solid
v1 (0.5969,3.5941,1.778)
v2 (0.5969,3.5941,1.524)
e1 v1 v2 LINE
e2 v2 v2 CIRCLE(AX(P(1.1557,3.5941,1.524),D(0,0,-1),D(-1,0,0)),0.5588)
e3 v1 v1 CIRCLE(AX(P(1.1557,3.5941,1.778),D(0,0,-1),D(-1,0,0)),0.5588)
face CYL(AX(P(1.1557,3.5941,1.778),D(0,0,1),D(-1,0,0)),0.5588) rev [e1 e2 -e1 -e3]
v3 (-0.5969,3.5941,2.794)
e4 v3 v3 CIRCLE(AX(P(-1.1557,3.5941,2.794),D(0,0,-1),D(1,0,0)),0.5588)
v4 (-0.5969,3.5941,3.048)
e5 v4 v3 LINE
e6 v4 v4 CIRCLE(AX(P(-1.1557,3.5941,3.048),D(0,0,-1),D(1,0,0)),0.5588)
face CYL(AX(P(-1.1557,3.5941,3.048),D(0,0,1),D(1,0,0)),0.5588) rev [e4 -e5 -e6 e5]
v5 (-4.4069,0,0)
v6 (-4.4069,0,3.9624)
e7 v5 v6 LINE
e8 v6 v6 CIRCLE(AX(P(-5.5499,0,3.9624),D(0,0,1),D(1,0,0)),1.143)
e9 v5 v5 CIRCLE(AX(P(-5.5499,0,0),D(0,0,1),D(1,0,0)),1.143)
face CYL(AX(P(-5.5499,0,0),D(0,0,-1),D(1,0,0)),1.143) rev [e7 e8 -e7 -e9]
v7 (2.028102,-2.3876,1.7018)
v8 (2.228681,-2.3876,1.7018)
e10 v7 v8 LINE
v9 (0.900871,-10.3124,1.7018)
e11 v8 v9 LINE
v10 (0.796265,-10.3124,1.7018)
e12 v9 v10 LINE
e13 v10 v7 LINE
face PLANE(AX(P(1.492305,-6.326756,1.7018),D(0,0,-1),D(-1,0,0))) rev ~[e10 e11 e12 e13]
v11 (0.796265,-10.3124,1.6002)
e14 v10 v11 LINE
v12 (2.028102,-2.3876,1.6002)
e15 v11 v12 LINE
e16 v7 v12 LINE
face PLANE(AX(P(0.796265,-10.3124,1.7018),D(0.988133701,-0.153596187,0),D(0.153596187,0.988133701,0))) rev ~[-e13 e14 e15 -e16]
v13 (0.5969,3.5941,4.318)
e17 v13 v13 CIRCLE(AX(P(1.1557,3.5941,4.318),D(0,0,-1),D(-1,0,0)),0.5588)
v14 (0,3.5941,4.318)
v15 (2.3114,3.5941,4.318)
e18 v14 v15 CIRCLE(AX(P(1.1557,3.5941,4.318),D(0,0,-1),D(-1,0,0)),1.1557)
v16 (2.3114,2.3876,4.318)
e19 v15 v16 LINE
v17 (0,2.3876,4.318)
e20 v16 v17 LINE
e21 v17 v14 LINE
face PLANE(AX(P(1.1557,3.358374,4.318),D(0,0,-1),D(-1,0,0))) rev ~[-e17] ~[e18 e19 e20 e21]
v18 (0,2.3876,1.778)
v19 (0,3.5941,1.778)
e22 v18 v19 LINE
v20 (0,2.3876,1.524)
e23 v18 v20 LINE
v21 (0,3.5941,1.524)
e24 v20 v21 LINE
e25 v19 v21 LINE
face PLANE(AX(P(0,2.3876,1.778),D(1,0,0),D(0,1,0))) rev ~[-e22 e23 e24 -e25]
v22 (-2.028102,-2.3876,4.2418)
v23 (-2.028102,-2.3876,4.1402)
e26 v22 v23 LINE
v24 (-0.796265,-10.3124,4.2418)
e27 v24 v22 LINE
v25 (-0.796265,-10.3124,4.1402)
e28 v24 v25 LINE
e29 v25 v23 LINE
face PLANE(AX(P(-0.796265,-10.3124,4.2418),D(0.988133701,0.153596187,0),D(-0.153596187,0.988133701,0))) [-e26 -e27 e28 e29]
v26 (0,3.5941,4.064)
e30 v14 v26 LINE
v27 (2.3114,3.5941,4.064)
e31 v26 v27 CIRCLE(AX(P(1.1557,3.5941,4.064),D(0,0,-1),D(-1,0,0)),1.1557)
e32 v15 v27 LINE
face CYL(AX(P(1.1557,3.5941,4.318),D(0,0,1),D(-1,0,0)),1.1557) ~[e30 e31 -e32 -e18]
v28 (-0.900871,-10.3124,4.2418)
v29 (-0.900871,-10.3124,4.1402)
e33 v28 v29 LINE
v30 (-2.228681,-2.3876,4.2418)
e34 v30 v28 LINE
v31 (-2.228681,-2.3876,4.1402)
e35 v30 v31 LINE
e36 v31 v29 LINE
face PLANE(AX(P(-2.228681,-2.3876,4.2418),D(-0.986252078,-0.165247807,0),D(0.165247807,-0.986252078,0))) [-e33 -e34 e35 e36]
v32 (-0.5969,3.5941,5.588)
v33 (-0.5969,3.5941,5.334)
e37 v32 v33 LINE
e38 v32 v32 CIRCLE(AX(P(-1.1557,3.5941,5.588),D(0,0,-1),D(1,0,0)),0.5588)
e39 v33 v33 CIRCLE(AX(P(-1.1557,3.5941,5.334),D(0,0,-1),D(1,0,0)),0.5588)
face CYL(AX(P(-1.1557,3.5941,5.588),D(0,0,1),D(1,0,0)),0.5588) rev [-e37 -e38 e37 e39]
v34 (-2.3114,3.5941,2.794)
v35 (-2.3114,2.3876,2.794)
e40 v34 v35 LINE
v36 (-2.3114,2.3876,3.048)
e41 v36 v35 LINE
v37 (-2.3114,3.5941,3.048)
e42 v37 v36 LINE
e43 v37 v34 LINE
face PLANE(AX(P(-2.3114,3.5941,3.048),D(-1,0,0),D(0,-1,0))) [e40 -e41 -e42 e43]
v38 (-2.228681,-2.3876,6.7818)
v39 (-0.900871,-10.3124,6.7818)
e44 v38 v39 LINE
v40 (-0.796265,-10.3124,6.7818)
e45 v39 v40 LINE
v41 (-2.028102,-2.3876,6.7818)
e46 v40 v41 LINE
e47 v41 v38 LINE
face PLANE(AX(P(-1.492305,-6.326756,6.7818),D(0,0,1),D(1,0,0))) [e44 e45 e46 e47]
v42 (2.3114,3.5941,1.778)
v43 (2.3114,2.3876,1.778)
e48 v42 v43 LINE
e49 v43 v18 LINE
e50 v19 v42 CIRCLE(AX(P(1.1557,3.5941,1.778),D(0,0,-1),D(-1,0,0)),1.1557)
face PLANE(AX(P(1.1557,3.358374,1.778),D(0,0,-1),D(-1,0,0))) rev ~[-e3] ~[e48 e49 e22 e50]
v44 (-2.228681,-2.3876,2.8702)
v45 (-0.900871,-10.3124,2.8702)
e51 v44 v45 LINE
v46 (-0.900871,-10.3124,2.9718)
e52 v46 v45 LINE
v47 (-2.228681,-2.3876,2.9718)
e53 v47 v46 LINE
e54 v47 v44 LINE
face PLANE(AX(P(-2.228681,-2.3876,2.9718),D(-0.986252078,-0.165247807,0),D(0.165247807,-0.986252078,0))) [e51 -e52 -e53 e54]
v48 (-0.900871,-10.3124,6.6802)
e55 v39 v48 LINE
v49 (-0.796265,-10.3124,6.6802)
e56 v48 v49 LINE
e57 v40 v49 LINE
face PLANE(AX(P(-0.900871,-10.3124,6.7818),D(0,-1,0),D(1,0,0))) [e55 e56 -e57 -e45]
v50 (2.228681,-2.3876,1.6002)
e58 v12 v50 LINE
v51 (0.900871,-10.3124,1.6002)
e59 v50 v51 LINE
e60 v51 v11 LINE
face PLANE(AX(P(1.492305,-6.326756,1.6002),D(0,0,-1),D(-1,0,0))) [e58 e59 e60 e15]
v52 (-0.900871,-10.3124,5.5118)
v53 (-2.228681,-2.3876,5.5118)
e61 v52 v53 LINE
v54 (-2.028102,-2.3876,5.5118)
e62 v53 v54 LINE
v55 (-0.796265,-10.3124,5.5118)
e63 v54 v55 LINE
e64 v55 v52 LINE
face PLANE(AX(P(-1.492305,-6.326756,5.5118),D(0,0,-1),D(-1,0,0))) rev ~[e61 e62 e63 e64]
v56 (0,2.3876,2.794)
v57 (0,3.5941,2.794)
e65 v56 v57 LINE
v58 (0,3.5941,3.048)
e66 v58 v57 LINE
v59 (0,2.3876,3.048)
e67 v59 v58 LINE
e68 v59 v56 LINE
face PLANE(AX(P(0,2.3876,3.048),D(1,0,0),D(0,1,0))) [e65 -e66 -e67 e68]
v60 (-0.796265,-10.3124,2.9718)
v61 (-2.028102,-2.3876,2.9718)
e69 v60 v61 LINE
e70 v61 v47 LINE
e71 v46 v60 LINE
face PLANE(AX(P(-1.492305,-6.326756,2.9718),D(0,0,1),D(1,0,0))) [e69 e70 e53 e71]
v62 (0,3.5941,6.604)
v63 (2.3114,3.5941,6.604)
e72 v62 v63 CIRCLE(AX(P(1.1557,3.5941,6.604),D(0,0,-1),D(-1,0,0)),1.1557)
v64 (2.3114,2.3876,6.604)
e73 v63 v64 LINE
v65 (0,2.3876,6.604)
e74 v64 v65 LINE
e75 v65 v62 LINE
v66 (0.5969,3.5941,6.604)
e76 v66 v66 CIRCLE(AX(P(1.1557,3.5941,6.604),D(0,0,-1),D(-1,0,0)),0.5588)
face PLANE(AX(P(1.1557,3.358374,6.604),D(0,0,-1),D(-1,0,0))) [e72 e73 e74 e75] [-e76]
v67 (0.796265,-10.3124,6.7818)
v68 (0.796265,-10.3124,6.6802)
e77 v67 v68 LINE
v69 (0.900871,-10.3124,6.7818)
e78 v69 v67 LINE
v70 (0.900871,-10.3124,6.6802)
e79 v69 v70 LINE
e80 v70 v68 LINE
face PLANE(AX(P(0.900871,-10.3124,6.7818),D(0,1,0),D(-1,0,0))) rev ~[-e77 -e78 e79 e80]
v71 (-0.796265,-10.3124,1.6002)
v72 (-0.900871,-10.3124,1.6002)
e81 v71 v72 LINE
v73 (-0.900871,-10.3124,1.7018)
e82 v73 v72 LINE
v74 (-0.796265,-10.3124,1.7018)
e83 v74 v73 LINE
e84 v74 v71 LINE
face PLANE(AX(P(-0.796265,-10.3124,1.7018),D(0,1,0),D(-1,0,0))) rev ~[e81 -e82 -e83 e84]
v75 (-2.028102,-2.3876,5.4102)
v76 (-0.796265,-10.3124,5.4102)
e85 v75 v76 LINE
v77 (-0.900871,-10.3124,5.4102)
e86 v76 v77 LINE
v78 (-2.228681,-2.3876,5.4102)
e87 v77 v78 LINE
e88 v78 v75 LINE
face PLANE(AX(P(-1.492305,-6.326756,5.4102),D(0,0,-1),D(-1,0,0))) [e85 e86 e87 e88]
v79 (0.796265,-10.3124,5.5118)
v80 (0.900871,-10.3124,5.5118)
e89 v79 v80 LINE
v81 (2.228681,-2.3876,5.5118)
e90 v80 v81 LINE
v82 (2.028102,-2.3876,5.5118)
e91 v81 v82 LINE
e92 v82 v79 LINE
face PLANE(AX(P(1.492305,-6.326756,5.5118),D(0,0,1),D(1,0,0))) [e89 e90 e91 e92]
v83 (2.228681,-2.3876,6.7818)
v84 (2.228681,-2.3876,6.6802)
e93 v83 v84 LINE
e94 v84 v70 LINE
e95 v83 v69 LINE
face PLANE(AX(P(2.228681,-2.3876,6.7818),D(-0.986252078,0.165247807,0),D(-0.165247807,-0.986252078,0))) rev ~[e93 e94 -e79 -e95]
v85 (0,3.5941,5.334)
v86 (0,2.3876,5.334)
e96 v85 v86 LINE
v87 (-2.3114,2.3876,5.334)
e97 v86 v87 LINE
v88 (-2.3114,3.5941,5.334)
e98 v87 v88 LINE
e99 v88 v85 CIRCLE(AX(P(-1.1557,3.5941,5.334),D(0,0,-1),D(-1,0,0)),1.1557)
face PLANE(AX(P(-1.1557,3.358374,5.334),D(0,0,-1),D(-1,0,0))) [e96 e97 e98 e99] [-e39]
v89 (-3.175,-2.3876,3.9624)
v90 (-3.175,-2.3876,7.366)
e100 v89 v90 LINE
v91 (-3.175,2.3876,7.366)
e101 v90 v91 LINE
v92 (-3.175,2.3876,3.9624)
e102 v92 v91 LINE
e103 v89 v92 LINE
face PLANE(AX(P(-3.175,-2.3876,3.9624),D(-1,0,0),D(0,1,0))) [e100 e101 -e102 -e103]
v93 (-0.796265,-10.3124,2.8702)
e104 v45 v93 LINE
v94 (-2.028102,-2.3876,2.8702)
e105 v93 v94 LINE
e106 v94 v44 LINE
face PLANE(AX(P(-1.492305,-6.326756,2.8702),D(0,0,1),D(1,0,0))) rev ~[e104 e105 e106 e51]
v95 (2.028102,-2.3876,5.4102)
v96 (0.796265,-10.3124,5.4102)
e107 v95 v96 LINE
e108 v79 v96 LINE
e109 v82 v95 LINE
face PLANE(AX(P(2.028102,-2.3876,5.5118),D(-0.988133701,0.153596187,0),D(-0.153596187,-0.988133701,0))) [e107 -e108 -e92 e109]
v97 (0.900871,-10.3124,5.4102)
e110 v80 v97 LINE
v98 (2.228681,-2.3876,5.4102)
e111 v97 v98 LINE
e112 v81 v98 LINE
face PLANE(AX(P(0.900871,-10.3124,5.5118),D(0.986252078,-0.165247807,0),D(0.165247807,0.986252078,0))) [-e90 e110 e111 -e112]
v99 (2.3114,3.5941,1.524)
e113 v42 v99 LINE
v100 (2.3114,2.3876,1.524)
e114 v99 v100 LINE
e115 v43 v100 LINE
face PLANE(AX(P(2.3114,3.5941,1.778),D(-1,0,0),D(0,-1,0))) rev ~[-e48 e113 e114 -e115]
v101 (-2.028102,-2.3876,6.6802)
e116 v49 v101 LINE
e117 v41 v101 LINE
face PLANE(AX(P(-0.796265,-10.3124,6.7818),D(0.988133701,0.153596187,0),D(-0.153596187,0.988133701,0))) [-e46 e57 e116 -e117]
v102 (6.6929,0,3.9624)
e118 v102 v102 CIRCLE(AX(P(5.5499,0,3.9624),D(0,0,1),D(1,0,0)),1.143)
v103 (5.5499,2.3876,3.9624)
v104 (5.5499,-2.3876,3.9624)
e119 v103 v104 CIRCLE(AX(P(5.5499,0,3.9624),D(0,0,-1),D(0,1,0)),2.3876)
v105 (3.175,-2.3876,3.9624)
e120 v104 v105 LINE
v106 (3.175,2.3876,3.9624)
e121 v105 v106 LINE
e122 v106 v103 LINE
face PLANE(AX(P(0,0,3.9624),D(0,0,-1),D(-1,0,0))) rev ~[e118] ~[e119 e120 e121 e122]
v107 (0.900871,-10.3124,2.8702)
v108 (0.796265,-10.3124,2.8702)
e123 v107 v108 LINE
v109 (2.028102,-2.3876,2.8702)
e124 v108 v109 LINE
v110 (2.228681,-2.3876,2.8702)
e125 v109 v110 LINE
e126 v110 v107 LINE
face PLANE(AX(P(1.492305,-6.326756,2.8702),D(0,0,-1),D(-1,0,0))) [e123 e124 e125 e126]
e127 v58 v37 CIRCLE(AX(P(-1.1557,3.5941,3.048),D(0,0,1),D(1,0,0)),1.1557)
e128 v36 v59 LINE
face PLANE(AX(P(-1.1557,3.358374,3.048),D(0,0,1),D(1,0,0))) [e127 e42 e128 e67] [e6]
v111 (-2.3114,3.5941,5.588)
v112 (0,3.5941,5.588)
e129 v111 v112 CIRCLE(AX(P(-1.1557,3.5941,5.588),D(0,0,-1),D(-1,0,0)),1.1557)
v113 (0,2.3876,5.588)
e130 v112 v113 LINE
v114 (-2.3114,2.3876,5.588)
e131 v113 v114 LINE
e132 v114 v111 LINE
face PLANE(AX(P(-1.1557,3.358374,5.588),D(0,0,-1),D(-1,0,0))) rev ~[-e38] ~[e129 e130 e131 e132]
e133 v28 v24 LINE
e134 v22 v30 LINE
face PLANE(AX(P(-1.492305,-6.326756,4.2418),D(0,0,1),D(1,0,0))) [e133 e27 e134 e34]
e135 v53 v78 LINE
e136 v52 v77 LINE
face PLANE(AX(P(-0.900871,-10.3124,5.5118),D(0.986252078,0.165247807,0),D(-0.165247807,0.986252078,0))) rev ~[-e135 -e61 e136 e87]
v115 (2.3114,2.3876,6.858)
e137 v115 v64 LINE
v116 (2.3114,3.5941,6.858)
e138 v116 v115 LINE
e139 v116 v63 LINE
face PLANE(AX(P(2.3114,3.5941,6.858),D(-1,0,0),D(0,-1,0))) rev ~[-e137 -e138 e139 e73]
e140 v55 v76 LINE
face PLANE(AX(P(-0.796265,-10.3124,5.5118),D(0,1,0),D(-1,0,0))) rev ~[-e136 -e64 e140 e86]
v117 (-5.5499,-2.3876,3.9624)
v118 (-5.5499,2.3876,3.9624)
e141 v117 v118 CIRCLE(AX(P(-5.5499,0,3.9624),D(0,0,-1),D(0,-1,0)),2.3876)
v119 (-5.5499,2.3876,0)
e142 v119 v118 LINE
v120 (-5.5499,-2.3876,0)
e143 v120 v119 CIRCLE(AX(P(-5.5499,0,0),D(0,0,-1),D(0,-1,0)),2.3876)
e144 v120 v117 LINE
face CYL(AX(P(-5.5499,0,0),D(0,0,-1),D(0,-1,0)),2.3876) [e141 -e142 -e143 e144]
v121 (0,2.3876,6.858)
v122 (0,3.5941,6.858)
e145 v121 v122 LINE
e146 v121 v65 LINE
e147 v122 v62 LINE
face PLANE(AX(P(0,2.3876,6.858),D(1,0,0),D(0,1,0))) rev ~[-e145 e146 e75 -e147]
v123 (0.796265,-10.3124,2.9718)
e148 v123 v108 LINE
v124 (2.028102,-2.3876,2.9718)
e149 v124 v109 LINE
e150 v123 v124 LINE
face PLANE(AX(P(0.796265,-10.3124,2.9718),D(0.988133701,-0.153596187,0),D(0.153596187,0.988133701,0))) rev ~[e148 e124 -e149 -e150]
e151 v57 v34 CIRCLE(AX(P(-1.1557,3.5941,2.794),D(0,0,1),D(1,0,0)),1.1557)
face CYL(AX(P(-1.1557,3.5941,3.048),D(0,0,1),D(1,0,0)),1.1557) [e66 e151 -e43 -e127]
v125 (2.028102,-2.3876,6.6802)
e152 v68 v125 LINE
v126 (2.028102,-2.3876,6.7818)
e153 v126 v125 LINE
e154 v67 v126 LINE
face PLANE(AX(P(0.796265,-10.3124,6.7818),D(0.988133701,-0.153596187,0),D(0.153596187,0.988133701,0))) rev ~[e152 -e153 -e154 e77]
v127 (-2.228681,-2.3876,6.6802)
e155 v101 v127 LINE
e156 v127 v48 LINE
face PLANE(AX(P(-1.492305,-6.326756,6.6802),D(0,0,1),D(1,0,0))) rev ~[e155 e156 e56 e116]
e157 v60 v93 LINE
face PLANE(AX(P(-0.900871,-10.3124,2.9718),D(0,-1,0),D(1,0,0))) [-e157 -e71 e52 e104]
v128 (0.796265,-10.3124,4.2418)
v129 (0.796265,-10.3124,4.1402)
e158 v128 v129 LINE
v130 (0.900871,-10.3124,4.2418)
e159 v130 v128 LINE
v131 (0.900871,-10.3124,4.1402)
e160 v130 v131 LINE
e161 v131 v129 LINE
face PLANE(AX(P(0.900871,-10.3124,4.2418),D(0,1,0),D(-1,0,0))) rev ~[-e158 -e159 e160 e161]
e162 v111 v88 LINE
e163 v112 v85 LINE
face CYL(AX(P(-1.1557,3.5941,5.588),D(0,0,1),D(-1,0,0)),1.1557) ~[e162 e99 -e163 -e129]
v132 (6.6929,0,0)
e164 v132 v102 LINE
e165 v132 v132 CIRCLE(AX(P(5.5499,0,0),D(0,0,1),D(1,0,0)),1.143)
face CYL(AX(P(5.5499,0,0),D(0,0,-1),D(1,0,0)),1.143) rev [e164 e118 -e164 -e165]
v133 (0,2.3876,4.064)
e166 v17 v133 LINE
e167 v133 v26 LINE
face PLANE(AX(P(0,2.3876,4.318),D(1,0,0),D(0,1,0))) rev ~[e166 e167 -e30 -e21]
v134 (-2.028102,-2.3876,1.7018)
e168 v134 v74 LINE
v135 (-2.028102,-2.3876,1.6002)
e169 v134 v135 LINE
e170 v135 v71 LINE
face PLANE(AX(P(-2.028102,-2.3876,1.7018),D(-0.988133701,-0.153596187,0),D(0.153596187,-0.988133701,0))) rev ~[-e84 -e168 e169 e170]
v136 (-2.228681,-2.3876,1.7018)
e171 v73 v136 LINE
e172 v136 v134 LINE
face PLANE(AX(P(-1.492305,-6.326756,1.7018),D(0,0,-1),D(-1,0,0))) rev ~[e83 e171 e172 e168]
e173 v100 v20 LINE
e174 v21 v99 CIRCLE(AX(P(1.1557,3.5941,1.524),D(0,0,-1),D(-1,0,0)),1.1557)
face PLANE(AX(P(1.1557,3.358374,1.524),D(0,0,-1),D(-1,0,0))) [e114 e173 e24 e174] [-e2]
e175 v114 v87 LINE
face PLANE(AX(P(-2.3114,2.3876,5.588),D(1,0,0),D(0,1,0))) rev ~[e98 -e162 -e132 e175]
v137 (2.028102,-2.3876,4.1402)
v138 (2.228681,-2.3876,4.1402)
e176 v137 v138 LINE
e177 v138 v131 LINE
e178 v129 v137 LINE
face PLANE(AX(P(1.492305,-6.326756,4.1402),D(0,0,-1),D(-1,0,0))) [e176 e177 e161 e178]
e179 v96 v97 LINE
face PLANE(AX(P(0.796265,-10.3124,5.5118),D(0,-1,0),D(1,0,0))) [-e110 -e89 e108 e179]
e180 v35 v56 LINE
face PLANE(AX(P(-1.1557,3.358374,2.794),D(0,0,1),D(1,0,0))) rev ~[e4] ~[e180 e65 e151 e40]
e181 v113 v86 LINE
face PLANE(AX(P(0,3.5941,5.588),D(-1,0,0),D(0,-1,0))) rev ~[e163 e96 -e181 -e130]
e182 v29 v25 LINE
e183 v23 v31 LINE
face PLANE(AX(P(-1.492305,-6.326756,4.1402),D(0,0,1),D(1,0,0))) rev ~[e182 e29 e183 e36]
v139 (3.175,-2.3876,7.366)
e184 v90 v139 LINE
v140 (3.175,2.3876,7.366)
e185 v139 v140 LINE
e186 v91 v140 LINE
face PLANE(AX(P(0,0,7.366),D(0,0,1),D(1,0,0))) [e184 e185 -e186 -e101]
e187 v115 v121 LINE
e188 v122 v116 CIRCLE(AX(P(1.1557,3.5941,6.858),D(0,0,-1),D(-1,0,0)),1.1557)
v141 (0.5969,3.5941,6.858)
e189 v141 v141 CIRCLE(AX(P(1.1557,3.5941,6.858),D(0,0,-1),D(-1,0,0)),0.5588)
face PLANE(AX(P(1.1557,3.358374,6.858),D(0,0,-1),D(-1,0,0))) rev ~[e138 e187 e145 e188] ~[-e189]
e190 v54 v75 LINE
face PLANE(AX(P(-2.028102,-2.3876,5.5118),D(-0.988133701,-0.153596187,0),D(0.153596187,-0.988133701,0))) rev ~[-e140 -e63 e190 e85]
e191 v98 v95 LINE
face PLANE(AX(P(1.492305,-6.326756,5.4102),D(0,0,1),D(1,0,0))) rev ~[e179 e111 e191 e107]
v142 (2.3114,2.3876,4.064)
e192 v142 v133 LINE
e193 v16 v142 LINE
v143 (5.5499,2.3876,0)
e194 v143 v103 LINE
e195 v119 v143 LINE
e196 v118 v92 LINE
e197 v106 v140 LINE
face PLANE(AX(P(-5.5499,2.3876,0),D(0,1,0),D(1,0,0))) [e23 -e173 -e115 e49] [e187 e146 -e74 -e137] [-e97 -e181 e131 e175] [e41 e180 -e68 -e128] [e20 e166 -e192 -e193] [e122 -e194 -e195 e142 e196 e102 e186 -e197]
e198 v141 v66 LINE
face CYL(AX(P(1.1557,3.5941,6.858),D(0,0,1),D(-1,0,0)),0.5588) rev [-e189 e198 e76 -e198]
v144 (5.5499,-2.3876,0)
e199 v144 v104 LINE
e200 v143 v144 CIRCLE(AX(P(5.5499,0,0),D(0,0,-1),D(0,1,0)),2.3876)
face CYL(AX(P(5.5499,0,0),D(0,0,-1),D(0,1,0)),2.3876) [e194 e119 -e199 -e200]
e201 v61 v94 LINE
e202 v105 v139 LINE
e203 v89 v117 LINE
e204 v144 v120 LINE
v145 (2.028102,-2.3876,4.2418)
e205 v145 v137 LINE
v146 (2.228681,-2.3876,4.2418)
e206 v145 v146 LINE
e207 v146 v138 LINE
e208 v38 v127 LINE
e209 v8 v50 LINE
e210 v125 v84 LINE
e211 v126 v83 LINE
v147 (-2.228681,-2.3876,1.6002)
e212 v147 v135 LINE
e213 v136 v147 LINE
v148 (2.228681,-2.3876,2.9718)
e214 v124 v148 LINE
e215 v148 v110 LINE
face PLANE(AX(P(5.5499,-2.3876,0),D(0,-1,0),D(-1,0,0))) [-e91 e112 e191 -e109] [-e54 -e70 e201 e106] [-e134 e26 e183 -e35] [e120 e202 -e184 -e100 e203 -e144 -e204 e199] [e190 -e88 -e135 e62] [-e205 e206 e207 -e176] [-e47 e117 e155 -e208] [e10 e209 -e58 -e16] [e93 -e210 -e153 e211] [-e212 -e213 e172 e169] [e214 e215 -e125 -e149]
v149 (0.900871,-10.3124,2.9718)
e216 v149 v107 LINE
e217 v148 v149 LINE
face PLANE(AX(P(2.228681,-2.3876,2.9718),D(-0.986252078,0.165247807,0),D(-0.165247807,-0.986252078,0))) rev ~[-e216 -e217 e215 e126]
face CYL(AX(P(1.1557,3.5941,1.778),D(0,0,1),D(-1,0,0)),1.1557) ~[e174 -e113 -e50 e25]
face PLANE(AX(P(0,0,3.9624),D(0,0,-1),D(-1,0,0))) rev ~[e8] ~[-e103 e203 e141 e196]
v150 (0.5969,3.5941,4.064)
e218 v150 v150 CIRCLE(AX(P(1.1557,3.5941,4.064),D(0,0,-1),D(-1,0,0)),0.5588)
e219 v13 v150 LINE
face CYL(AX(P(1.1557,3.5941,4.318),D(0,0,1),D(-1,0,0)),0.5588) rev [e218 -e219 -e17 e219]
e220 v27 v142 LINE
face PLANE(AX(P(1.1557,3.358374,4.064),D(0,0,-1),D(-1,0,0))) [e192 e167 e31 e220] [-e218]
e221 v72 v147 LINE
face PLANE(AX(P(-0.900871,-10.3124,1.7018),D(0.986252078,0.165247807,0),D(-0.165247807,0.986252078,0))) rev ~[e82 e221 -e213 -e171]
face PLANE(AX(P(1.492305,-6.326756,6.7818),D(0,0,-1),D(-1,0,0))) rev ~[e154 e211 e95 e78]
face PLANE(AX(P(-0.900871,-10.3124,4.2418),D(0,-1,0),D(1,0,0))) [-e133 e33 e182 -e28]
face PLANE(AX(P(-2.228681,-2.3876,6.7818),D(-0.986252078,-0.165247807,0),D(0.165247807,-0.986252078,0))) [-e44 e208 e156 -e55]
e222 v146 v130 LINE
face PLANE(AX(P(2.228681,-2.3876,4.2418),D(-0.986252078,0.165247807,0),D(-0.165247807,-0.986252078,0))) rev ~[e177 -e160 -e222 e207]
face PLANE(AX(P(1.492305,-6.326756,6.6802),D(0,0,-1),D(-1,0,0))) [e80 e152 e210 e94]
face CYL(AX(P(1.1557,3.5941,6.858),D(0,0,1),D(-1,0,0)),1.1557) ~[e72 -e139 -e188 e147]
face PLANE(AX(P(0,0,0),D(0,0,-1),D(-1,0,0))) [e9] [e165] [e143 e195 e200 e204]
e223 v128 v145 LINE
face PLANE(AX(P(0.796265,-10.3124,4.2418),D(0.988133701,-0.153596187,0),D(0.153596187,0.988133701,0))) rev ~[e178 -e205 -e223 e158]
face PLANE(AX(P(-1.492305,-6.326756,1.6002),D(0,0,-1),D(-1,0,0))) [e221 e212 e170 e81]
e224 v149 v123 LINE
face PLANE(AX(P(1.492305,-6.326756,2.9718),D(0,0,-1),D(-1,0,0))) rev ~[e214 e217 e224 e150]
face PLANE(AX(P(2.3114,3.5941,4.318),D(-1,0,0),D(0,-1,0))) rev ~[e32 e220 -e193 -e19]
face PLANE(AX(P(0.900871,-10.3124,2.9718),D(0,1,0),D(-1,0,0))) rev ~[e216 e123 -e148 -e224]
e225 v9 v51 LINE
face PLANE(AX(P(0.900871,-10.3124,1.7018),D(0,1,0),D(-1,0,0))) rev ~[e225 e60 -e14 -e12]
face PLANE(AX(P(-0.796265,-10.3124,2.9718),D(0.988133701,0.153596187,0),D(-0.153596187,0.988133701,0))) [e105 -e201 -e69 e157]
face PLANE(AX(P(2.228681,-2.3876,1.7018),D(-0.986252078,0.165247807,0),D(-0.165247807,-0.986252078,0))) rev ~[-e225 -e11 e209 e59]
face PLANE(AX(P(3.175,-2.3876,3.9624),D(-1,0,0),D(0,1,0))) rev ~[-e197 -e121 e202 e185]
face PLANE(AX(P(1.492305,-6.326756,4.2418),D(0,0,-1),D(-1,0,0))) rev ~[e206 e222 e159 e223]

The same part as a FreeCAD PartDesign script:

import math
import FreeCAD as App
import Part
import Sketcher
Q = App.Units.Quantity


def add_polygon(sketch, points):
    """Adds a closed chain of lines whose ends are joined by coincident constraints."""
    first, n = sketch.GeometryCount, len(points)
    for a, b in zip(points, points[1:] + points[:1]):
        sketch.addGeometry(Part.LineSegment(App.Vector(*a, 0), App.Vector(*b, 0)), False)
    for i in range(n):
        sketch.addConstraint(Sketcher.Constraint("Coincident", first + i, 2, first + (i + 1) % n, 1))

doc = App.newDocument("Part")
body = doc.addObject("PartDesign::Body", "Body")

# Sketch on XY plane
sketch1 = doc.addObject("Sketcher::SketchObject", "Sketch")
body.addObject(sketch1)
sketch1.AttachmentSupport = (doc.XY_Plane, [""])
sketch1.MapMode = "FlatFace"
sketch1.addGeometry(Part.LineSegment(App.Vector(5.5, 2.4, 0), App.Vector(-5.5, 2.4, 0)), False)
sketch1.addGeometry(Part.ArcOfCircle(Part.Circle(App.Vector(-5.5, 0, 0), App.Vector(0, 0, 1), 2.4), math.radians(90), math.radians(270)), False)
sketch1.addGeometry(Part.LineSegment(App.Vector(-5.5, -2.4, 0), App.Vector(5.5, -2.4, 0)), False)
sketch1.addGeometry(Part.ArcOfCircle(Part.Circle(App.Vector(5.5, 0, 0), App.Vector(0, 0, 1), 2.4), math.radians(-90), math.radians(90)), False)
sketch1.addGeometry(Part.Circle(App.Vector(5.5, 0, 0), App.Vector(0, 0, 1), 1.1), False)
sketch1.addGeometry(Part.Circle(App.Vector(-5.5, 0, 0), App.Vector(0, 0, 1), 1.1), False)
sketch1.addConstraint(Sketcher.Constraint("Tangent", 0, 2, 1, 1))
sketch1.addConstraint(Sketcher.Constraint("Tangent", 1, 2, 2, 1))
sketch1.addConstraint(Sketcher.Constraint("Tangent", 2, 2, 3, 1))
sketch1.addConstraint(Sketcher.Constraint("Tangent", 3, 2, 0, 1))
sketch1.addConstraint(Sketcher.Constraint("Horizontal", 0))
sketch1.addConstraint(Sketcher.Constraint("Horizontal", 2))
sketch1.addConstraint(Sketcher.Constraint("Coincident", 4, 3, 3, 3))
sketch1.addConstraint(Sketcher.Constraint("Coincident", 5, 3, 1, 3))
sketch1.addConstraint(Sketcher.Constraint("Equal", 4, 5))
sketch1.addConstraint(Sketcher.Constraint("Symmetric", 1, 3, 3, 3, -1, 1))
sketch1.addConstraint(Sketcher.Constraint("Diameter", 4, Q("0.09 in")))
sketch1.addConstraint(Sketcher.Constraint("Radius", 1, Q("0.094 in")))
sketch1.addConstraint(Sketcher.Constraint("DistanceX", 0, 2, 0, 1, Q("0.437 in")))
pad1 = doc.addObject("PartDesign::Pad", "Pad")
body.addObject(pad1)
pad1.Profile = sketch1
pad1.Length = Q("0.156 in")

# Sketch on XY plane
sketch2 = doc.addObject("Sketcher::SketchObject", "Sketch001")
body.addObject(sketch2)
sketch2.AttachmentSupport = (doc.XY_Plane, [""])
sketch2.MapMode = "FlatFace"
sketch2.AttachmentOffset = App.Placement(App.Vector(0, 0, 0.156 * 25.4), App.Rotation())
add_polygon(sketch2, [(-3.2, 2.4), (-3.2, -2.4), (3.2, -2.4), (3.2, 2.4)])  # lines 0-3
sketch2.addConstraint(Sketcher.Constraint("Vertical", 0))
sketch2.addConstraint(Sketcher.Constraint("Horizontal", 1))
sketch2.addConstraint(Sketcher.Constraint("Vertical", 2))
sketch2.addConstraint(Sketcher.Constraint("Horizontal", 3))
sketch2.addConstraint(Sketcher.Constraint("Symmetric", 0, 2, 2, 2, -1, 1))
sketch2.addConstraint(Sketcher.Constraint("DistanceX", 1, 1, 1, 2, Q("0.25 in")))
sketch2.addConstraint(Sketcher.Constraint("DistanceY", 0, 2, 0, 1, Q("0.188 in")))
pad2 = doc.addObject("PartDesign::Pad", "Pad001")
body.addObject(pad2)
pad2.Profile = sketch2
pad2.Length = Q("0.134 in")

# Sketch on XY plane
sketch3 = doc.addObject("Sketcher::SketchObject", "Sketch002")
body.addObject(sketch3)
sketch3.AttachmentSupport = (doc.XY_Plane, [""])
sketch3.MapMode = "FlatFace"
sketch3.AttachmentOffset = App.Placement(App.Vector(0, 0, 0.065 * 25.4), App.Rotation())
sketch3.addGeometry(Part.LineSegment(App.Vector(2.3, 3.6, 0), App.Vector(2.3, 2.4, 0)), False)
sketch3.addGeometry(Part.LineSegment(App.Vector(2.3, 2.4, 0), App.Vector(0, 2.4, 0)), False)
sketch3.addGeometry(Part.LineSegment(App.Vector(0, 2.4, 0), App.Vector(0, 3.6, 0)), False)
sketch3.addGeometry(Part.ArcOfCircle(Part.Circle(App.Vector(1.2, 3.6, 0), App.Vector(0, 0, 1), 1.2), math.radians(0), math.radians(180)), False)
sketch3.addGeometry(Part.Circle(App.Vector(1.2, 3.6, 0), App.Vector(0, 0, 1), 0.6), False)
sketch3.addConstraint(Sketcher.Constraint("Coincident", 0, 2, 1, 1))
sketch3.addConstraint(Sketcher.Constraint("Coincident", 1, 2, 2, 1))
sketch3.addConstraint(Sketcher.Constraint("Tangent", 2, 2, 3, 2))
sketch3.addConstraint(Sketcher.Constraint("Tangent", 3, 1, 0, 1))
sketch3.addConstraint(Sketcher.Constraint("Vertical", 0))
sketch3.addConstraint(Sketcher.Constraint("Horizontal", 1))
sketch3.addConstraint(Sketcher.Constraint("Vertical", 2))
sketch3.addConstraint(Sketcher.Constraint("Coincident", 4, 3, 3, 3))
sketch3.addConstraint(Sketcher.Constraint("PointOnObject", 1, 2, -2))
sketch3.addConstraint(Sketcher.Constraint("Diameter", 4, Q("0.044 in")))
sketch3.addConstraint(Sketcher.Constraint("Radius", 3, Q("0.0455 in")))
sketch3.addConstraint(Sketcher.Constraint("DistanceY", 0, 2, 0, 1, Q("0.0475 in")))
sketch3.addConstraint(Sketcher.Constraint("DistanceY", -1, 1, 0, 2, Q("0.094 in")))
pad3 = doc.addObject("PartDesign::Pad", "Pad002")
body.addObject(pad3)
pad3.Profile = sketch3
pad3.Type = "TwoLengths"
pad3.Length = Q("0.005 in")
pad3.Length2 = Q("0.005 in")
pad3.Reversed = True

# Sketch on XY plane
sketch4 = doc.addObject("Sketcher::SketchObject", "Sketch003")
body.addObject(sketch4)
sketch4.AttachmentSupport = (doc.XY_Plane, [""])
sketch4.MapMode = "FlatFace"
sketch4.AttachmentOffset = App.Placement(App.Vector(0, 0, 0.115 * 25.4), App.Rotation())
sketch4.addGeometry(Part.LineSegment(App.Vector(-2.3, 2.4, 0), App.Vector(-2.3, 3.6, 0)), False)
sketch4.addGeometry(Part.ArcOfCircle(Part.Circle(App.Vector(-1.2, 3.6, 0), App.Vector(0, 0, 1), 1.2), math.radians(0), math.radians(180)), False)
sketch4.addGeometry(Part.LineSegment(App.Vector(0, 3.6, 0), App.Vector(0, 2.4, 0)), False)
sketch4.addGeometry(Part.LineSegment(App.Vector(0, 2.4, 0), App.Vector(-2.3, 2.4, 0)), False)
sketch4.addGeometry(Part.Circle(App.Vector(-1.2, 3.6, 0), App.Vector(0, 0, 1), 0.6), False)
sketch4.addConstraint(Sketcher.Constraint("Tangent", 0, 2, 1, 2))
sketch4.addConstraint(Sketcher.Constraint("Tangent", 1, 1, 2, 1))
sketch4.addConstraint(Sketcher.Constraint("Coincident", 2, 2, 3, 1))
sketch4.addConstraint(Sketcher.Constraint("Coincident", 3, 2, 0, 1))
sketch4.addConstraint(Sketcher.Constraint("Vertical", 0))
sketch4.addConstraint(Sketcher.Constraint("Vertical", 2))
sketch4.addConstraint(Sketcher.Constraint("Horizontal", 3))
sketch4.addConstraint(Sketcher.Constraint("Coincident", 4, 3, 1, 3))
sketch4.addConstraint(Sketcher.Constraint("PointOnObject", 1, 1, -2))
sketch4.addConstraint(Sketcher.Constraint("Diameter", 4, Q("0.044 in")))
sketch4.addConstraint(Sketcher.Constraint("Radius", 1, Q("0.0455 in")))
sketch4.addConstraint(Sketcher.Constraint("DistanceY", 0, 1, 0, 2, Q("0.0475 in")))
sketch4.addConstraint(Sketcher.Constraint("DistanceY", -1, 1, 2, 2, Q("0.094 in")))
pad4 = doc.addObject("PartDesign::Pad", "Pad003")
body.addObject(pad4)
pad4.Profile = sketch4
pad4.Type = "TwoLengths"
pad4.Length = Q("0.005 in")
pad4.Length2 = Q("0.005 in")
pad4.Reversed = True

# Sketch on XY plane
sketch5 = doc.addObject("Sketcher::SketchObject", "Sketch004")
body.addObject(sketch5)
sketch5.AttachmentSupport = (doc.XY_Plane, [""])
sketch5.MapMode = "FlatFace"
sketch5.AttachmentOffset = App.Placement(App.Vector(0, 0, 0.165 * 25.4), App.Rotation())
sketch5.addGeometry(Part.LineSegment(App.Vector(2.3, 3.6, 0), App.Vector(2.3, 2.4, 0)), False)
sketch5.addGeometry(Part.LineSegment(App.Vector(2.3, 2.4, 0), App.Vector(0, 2.4, 0)), False)
sketch5.addGeometry(Part.LineSegment(App.Vector(0, 2.4, 0), App.Vector(0, 3.6, 0)), False)
sketch5.addGeometry(Part.ArcOfCircle(Part.Circle(App.Vector(1.2, 3.6, 0), App.Vector(0, 0, 1), 1.2), math.radians(0), math.radians(180)), False)
sketch5.addGeometry(Part.Circle(App.Vector(1.2, 3.6, 0), App.Vector(0, 0, 1), 0.6), False)
sketch5.addConstraint(Sketcher.Constraint("Coincident", 0, 2, 1, 1))
sketch5.addConstraint(Sketcher.Constraint("Coincident", 1, 2, 2, 1))
sketch5.addConstraint(Sketcher.Constraint("Tangent", 2, 2, 3, 2))
sketch5.addConstraint(Sketcher.Constraint("Tangent", 3, 1, 0, 1))
sketch5.addConstraint(Sketcher.Constraint("Vertical", 0))
sketch5.addConstraint(Sketcher.Constraint("Horizontal", 1))
sketch5.addConstraint(Sketcher.Constraint("Vertical", 2))
sketch5.addConstraint(Sketcher.Constraint("Coincident", 4, 3, 3, 3))
sketch5.addConstraint(Sketcher.Constraint("PointOnObject", 1, 2, -2))
sketch5.addConstraint(Sketcher.Constraint("Diameter", 4, Q("0.044 in")))
sketch5.addConstraint(Sketcher.Constraint("Radius", 3, Q("0.0455 in")))
sketch5.addConstraint(Sketcher.Constraint("DistanceY", 0, 2, 0, 1, Q("0.0475 in")))
sketch5.addConstraint(Sketcher.Constraint("DistanceY", -1, 1, 0, 2, Q("0.094 in")))
pad5 = doc.addObject("PartDesign::Pad", "Pad004")
body.addObject(pad5)
pad5.Profile = sketch5
pad5.Type = "TwoLengths"
pad5.Length = Q("0.005 in")
pad5.Length2 = Q("0.005 in")
pad5.Reversed = True

# Sketch on XY plane
sketch6 = doc.addObject("Sketcher::SketchObject", "Sketch005")
body.addObject(sketch6)
sketch6.AttachmentSupport = (doc.XY_Plane, [""])
sketch6.MapMode = "FlatFace"
sketch6.AttachmentOffset = App.Placement(App.Vector(0, 0, 0.215 * 25.4), App.Rotation())
sketch6.addGeometry(Part.LineSegment(App.Vector(-2.3, 2.4, 0), App.Vector(-2.3, 3.6, 0)), False)
sketch6.addGeometry(Part.ArcOfCircle(Part.Circle(App.Vector(-1.2, 3.6, 0), App.Vector(0, 0, 1), 1.2), math.radians(0), math.radians(180)), False)
sketch6.addGeometry(Part.LineSegment(App.Vector(0, 3.6, 0), App.Vector(0, 2.4, 0)), False)
sketch6.addGeometry(Part.LineSegment(App.Vector(0, 2.4, 0), App.Vector(-2.3, 2.4, 0)), False)
sketch6.addGeometry(Part.Circle(App.Vector(-1.2, 3.6, 0), App.Vector(0, 0, 1), 0.6), False)
sketch6.addConstraint(Sketcher.Constraint("Tangent", 0, 2, 1, 2))
sketch6.addConstraint(Sketcher.Constraint("Tangent", 1, 1, 2, 1))
sketch6.addConstraint(Sketcher.Constraint("Coincident", 2, 2, 3, 1))
sketch6.addConstraint(Sketcher.Constraint("Coincident", 3, 2, 0, 1))
sketch6.addConstraint(Sketcher.Constraint("Vertical", 0))
sketch6.addConstraint(Sketcher.Constraint("Vertical", 2))
sketch6.addConstraint(Sketcher.Constraint("Horizontal", 3))
sketch6.addConstraint(Sketcher.Constraint("Coincident", 4, 3, 1, 3))
sketch6.addConstraint(Sketcher.Constraint("PointOnObject", 1, 1, -2))
sketch6.addConstraint(Sketcher.Constraint("Diameter", 4, Q("0.044 in")))
sketch6.addConstraint(Sketcher.Constraint("Radius", 1, Q("0.0455 in")))
sketch6.addConstraint(Sketcher.Constraint("DistanceY", 0, 1, 0, 2, Q("0.0475 in")))
sketch6.addConstraint(Sketcher.Constraint("DistanceY", -1, 1, 2, 2, Q("0.094 in")))
pad6 = doc.addObject("PartDesign::Pad", "Pad005")
body.addObject(pad6)
pad6.Profile = sketch6
pad6.Type = "TwoLengths"
pad6.Length = Q("0.005 in")
pad6.Length2 = Q("0.005 in")
pad6.Reversed = True

# Sketch on XY plane
sketch7 = doc.addObject("Sketcher::SketchObject", "Sketch006")
body.addObject(sketch7)
sketch7.AttachmentSupport = (doc.XY_Plane, [""])
sketch7.MapMode = "FlatFace"
sketch7.AttachmentOffset = App.Placement(App.Vector(0, 0, 0.265 * 25.4), App.Rotation())
sketch7.addGeometry(Part.LineSegment(App.Vector(2.3, 3.6, 0), App.Vector(2.3, 2.4, 0)), False)
sketch7.addGeometry(Part.LineSegment(App.Vector(2.3, 2.4, 0), App.Vector(0, 2.4, 0)), False)
sketch7.addGeometry(Part.LineSegment(App.Vector(0, 2.4, 0), App.Vector(0, 3.6, 0)), False)
sketch7.addGeometry(Part.ArcOfCircle(Part.Circle(App.Vector(1.2, 3.6, 0), App.Vector(0, 0, 1), 1.2), math.radians(0), math.radians(180)), False)
sketch7.addGeometry(Part.Circle(App.Vector(1.2, 3.6, 0), App.Vector(0, 0, 1), 0.6), False)
sketch7.addConstraint(Sketcher.Constraint("Coincident", 0, 2, 1, 1))
sketch7.addConstraint(Sketcher.Constraint("Coincident", 1, 2, 2, 1))
sketch7.addConstraint(Sketcher.Constraint("Tangent", 2, 2, 3, 2))
sketch7.addConstraint(Sketcher.Constraint("Tangent", 3, 1, 0, 1))
sketch7.addConstraint(Sketcher.Constraint("Vertical", 0))
sketch7.addConstraint(Sketcher.Constraint("Horizontal", 1))
sketch7.addConstraint(Sketcher.Constraint("Vertical", 2))
sketch7.addConstraint(Sketcher.Constraint("Coincident", 4, 3, 3, 3))
sketch7.addConstraint(Sketcher.Constraint("PointOnObject", 1, 2, -2))
sketch7.addConstraint(Sketcher.Constraint("Diameter", 4, Q("0.044 in")))
sketch7.addConstraint(Sketcher.Constraint("Radius", 3, Q("0.0455 in")))
sketch7.addConstraint(Sketcher.Constraint("DistanceY", 0, 2, 0, 1, Q("0.0475 in")))
sketch7.addConstraint(Sketcher.Constraint("DistanceY", -1, 1, 0, 2, Q("0.094 in")))
pad7 = doc.addObject("PartDesign::Pad", "Pad006")
body.addObject(pad7)
pad7.Profile = sketch7
pad7.Type = "TwoLengths"
pad7.Length = Q("0.005 in")
pad7.Length2 = Q("0.005 in")
pad7.Reversed = True

# Sketch on XY plane
sketch8 = doc.addObject("Sketcher::SketchObject", "Sketch007")
body.addObject(sketch8)
sketch8.AttachmentSupport = (doc.XY_Plane, [""])
sketch8.MapMode = "FlatFace"
sketch8.AttachmentOffset = App.Placement(App.Vector(0, 0, 0.065 * 25.4), App.Rotation())
add_polygon(sketch8, [(-2.23, -2.39), (-2.03, -2.39), (-0.8, -10.31), (-0.9, -10.31)])  # lines 0-3
add_polygon(sketch8, [(0.9, -10.31), (0.8, -10.31), (2.03, -2.39), (2.23, -2.39)])  # lines 4-7
sketch8.addConstraint(Sketcher.Constraint("Horizontal", 0))
sketch8.addConstraint(Sketcher.Constraint("Horizontal", 2))
sketch8.addConstraint(Sketcher.Constraint("Horizontal", 4))
sketch8.addConstraint(Sketcher.Constraint("Horizontal", 6))
sketch8.addConstraint(Sketcher.Constraint("Symmetric", 1, 2, 4, 2, -2))
sketch8.addConstraint(Sketcher.Constraint("Symmetric", 0, 2, 5, 2, -2))
sketch8.addConstraint(Sketcher.Constraint("Equal", 2, 4))
sketch8.addConstraint(Sketcher.Constraint("Equal", 0, 6))
sketch8.addConstraint(Sketcher.Constraint("DistanceY", 0, 2, -1, 1, Q("0.094 in")))
sketch8.addConstraint(Sketcher.Constraint("DistanceY", 1, 2, -1, 1, Q("0.406 in")))
sketch8.addConstraint(Sketcher.Constraint("DistanceX", 0, 1, 0, 2, Q("0.200579 mm")))
sketch8.addConstraint(Sketcher.Constraint("DistanceX", 0, 2, -1, 1, Q("2.028102 mm")))
sketch8.addConstraint(Sketcher.Constraint("Distance", 3, Q("8.035268 mm")))
sketch8.addConstraint(Sketcher.Constraint("DistanceX", 2, 2, 2, 1, Q("0.104605 mm")))
pad8 = doc.addObject("PartDesign::Pad", "Pad007")
body.addObject(pad8)
pad8.Profile = sketch8
pad8.Type = "TwoLengths"
pad8.Length = Q("0.002 in")
pad8.Length2 = Q("0.002 in")
pad8.Reversed = True

# Sketch on XY plane
sketch9 = doc.addObject("Sketcher::SketchObject", "Sketch008")
body.addObject(sketch9)
sketch9.AttachmentSupport = (doc.XY_Plane, [""])
sketch9.MapMode = "FlatFace"
sketch9.AttachmentOffset = App.Placement(App.Vector(0, 0, 0.165 * 25.4), App.Rotation())
add_polygon(sketch9, [(-0.9, -10.31), (-2.23, -2.39), (-2.03, -2.39), (-0.8, -10.31)])  # lines 0-3
add_polygon(sketch9, [(0.9, -10.31), (0.8, -10.31), (2.03, -2.39), (2.23, -2.39)])  # lines 4-7
sketch9.addConstraint(Sketcher.Constraint("Horizontal", 1))
sketch9.addConstraint(Sketcher.Constraint("Horizontal", 3))
sketch9.addConstraint(Sketcher.Constraint("Horizontal", 4))
sketch9.addConstraint(Sketcher.Constraint("Horizontal", 6))
sketch9.addConstraint(Sketcher.Constraint("Symmetric", 2, 2, 4, 2, -2))
sketch9.addConstraint(Sketcher.Constraint("Symmetric", 1, 2, 5, 2, -2))
sketch9.addConstraint(Sketcher.Constraint("Equal", 3, 4))
sketch9.addConstraint(Sketcher.Constraint("Equal", 1, 6))
sketch9.addConstraint(Sketcher.Constraint("DistanceY", 0, 2, -1, 1, Q("0.094 in")))
sketch9.addConstraint(Sketcher.Constraint("DistanceY", 2, 2, -1, 1, Q("0.406 in")))
sketch9.addConstraint(Sketcher.Constraint("DistanceX", 1, 1, 1, 2, Q("0.200579 mm")))
sketch9.addConstraint(Sketcher.Constraint("DistanceX", 1, 2, -1, 1, Q("2.028102 mm")))
sketch9.addConstraint(Sketcher.Constraint("Distance", 0, Q("8.035268 mm")))
sketch9.addConstraint(Sketcher.Constraint("DistanceX", 3, 2, 3, 1, Q("0.104605 mm")))
pad9 = doc.addObject("PartDesign::Pad", "Pad008")
body.addObject(pad9)
pad9.Profile = sketch9
pad9.Type = "TwoLengths"
pad9.Length = Q("0.002 in")
pad9.Length2 = Q("0.002 in")
pad9.Reversed = True

# Sketch on XY plane
sketch10 = doc.addObject("Sketcher::SketchObject", "Sketch009")
body.addObject(sketch10)
sketch10.AttachmentSupport = (doc.XY_Plane, [""])
sketch10.MapMode = "FlatFace"
sketch10.AttachmentOffset = App.Placement(App.Vector(0, 0, 0.265 * 25.4), App.Rotation())
add_polygon(sketch10, [(-0.9, -10.31), (-2.23, -2.39), (-2.03, -2.39), (-0.8, -10.31)])  # lines 0-3
add_polygon(sketch10, [(0.9, -10.31), (0.8, -10.31), (2.03, -2.39), (2.23, -2.39)])  # lines 4-7
sketch10.addConstraint(Sketcher.Constraint("Horizontal", 1))
sketch10.addConstraint(Sketcher.Constraint("Horizontal", 3))
sketch10.addConstraint(Sketcher.Constraint("Horizontal", 4))
sketch10.addConstraint(Sketcher.Constraint("Horizontal", 6))
sketch10.addConstraint(Sketcher.Constraint("Symmetric", 2, 2, 4, 2, -2))
sketch10.addConstraint(Sketcher.Constraint("Symmetric", 1, 2, 5, 2, -2))
sketch10.addConstraint(Sketcher.Constraint("Equal", 3, 4))
sketch10.addConstraint(Sketcher.Constraint("Equal", 1, 6))
sketch10.addConstraint(Sketcher.Constraint("DistanceY", 0, 2, -1, 1, Q("0.094 in")))
sketch10.addConstraint(Sketcher.Constraint("DistanceY", 2, 2, -1, 1, Q("0.406 in")))
sketch10.addConstraint(Sketcher.Constraint("DistanceX", 1, 1, 1, 2, Q("0.200579 mm")))
sketch10.addConstraint(Sketcher.Constraint("DistanceX", 1, 2, -1, 1, Q("2.028102 mm")))
sketch10.addConstraint(Sketcher.Constraint("Distance", 0, Q("8.035268 mm")))
sketch10.addConstraint(Sketcher.Constraint("DistanceX", 3, 2, 3, 1, Q("0.104605 mm")))
pad10 = doc.addObject("PartDesign::Pad", "Pad009")
body.addObject(pad10)
pad10.Profile = sketch10
pad10.Type = "TwoLengths"
pad10.Length = Q("0.002 in")
pad10.Length2 = Q("0.002 in")
pad10.Reversed = True

# Sketch on XY plane
sketch11 = doc.addObject("Sketcher::SketchObject", "Sketch010")
body.addObject(sketch11)
sketch11.AttachmentSupport = (doc.XY_Plane, [""])
sketch11.MapMode = "FlatFace"
sketch11.AttachmentOffset = App.Placement(App.Vector(0, 0, 0.115 * 25.4), App.Rotation())
add_polygon(sketch11, [(-0.8, -10.31), (-0.9, -10.31), (-2.23, -2.39), (-2.03, -2.39)])  # lines 0-3
add_polygon(sketch11, [(0.9, -10.31), (0.8, -10.31), (2.03, -2.39), (2.23, -2.39)])  # lines 4-7
sketch11.addConstraint(Sketcher.Constraint("Horizontal", 0))
sketch11.addConstraint(Sketcher.Constraint("Horizontal", 2))
sketch11.addConstraint(Sketcher.Constraint("Horizontal", 4))
sketch11.addConstraint(Sketcher.Constraint("Horizontal", 6))
sketch11.addConstraint(Sketcher.Constraint("Symmetric", 3, 2, 4, 2, -2))
sketch11.addConstraint(Sketcher.Constraint("Symmetric", 2, 2, 5, 2, -2))
sketch11.addConstraint(Sketcher.Constraint("Equal", 0, 4))
sketch11.addConstraint(Sketcher.Constraint("Equal", 2, 6))
sketch11.addConstraint(Sketcher.Constraint("DistanceY", 0, 2, -1, 1, Q("0.406 in")))
sketch11.addConstraint(Sketcher.Constraint("DistanceY", 1, 2, -1, 1, Q("0.094 in")))
sketch11.addConstraint(Sketcher.Constraint("DistanceX", 2, 1, 2, 2, Q("0.200579 mm")))
sketch11.addConstraint(Sketcher.Constraint("DistanceX", 2, 2, -1, 1, Q("2.028102 mm")))
sketch11.addConstraint(Sketcher.Constraint("Distance", 1, Q("8.035268 mm")))
sketch11.addConstraint(Sketcher.Constraint("DistanceX", 0, 2, 0, 1, Q("0.104605 mm")))
pad11 = doc.addObject("PartDesign::Pad", "Pad010")
body.addObject(pad11)
pad11.Profile = sketch11
pad11.Type = "TwoLengths"
pad11.Length = Q("0.002 in")
pad11.Length2 = Q("0.002 in")
pad11.Reversed = True

# Sketch on XY plane
sketch12 = doc.addObject("Sketcher::SketchObject", "Sketch011")
body.addObject(sketch12)
sketch12.AttachmentSupport = (doc.XY_Plane, [""])
sketch12.MapMode = "FlatFace"
sketch12.AttachmentOffset = App.Placement(App.Vector(0, 0, 0.215 * 25.4), App.Rotation())
add_polygon(sketch12, [(2.23, -2.39), (0.9, -10.31), (0.8, -10.31), (2.03, -2.39)])  # lines 0-3
add_polygon(sketch12, [(-0.8, -10.31), (-0.9, -10.31), (-2.23, -2.39), (-2.03, -2.39)])  # lines 4-7
sketch12.addConstraint(Sketcher.Constraint("Horizontal", 1))
sketch12.addConstraint(Sketcher.Constraint("Horizontal", 3))
sketch12.addConstraint(Sketcher.Constraint("Horizontal", 4))
sketch12.addConstraint(Sketcher.Constraint("Horizontal", 6))
sketch12.addConstraint(Sketcher.Constraint("Symmetric", 0, 2, 4, 2, -2))
sketch12.addConstraint(Sketcher.Constraint("Symmetric", 3, 2, 5, 2, -2))
sketch12.addConstraint(Sketcher.Constraint("Equal", 1, 4))
sketch12.addConstraint(Sketcher.Constraint("Equal", 3, 6))
sketch12.addConstraint(Sketcher.Constraint("DistanceY", 0, 2, -1, 1, Q("0.406 in")))
sketch12.addConstraint(Sketcher.Constraint("DistanceY", 2, 2, -1, 1, Q("0.094 in")))
sketch12.addConstraint(Sketcher.Constraint("DistanceX", 3, 1, 3, 2, Q("0.200579 mm")))
sketch12.addConstraint(Sketcher.Constraint("DistanceX", -1, 1, 2, 2, Q("2.028102 mm")))
sketch12.addConstraint(Sketcher.Constraint("Distance", 0, Q("8.035268 mm")))
sketch12.addConstraint(Sketcher.Constraint("DistanceX", 1, 2, 1, 1, Q("0.104605 mm")))
pad12 = doc.addObject("PartDesign::Pad", "Pad011")
body.addObject(pad12)
pad12.Profile = sketch12
pad12.Type = "TwoLengths"
pad12.Length = Q("0.002 in")
pad12.Length2 = Q("0.002 in")
pad12.Reversed = True

doc.recompute()
